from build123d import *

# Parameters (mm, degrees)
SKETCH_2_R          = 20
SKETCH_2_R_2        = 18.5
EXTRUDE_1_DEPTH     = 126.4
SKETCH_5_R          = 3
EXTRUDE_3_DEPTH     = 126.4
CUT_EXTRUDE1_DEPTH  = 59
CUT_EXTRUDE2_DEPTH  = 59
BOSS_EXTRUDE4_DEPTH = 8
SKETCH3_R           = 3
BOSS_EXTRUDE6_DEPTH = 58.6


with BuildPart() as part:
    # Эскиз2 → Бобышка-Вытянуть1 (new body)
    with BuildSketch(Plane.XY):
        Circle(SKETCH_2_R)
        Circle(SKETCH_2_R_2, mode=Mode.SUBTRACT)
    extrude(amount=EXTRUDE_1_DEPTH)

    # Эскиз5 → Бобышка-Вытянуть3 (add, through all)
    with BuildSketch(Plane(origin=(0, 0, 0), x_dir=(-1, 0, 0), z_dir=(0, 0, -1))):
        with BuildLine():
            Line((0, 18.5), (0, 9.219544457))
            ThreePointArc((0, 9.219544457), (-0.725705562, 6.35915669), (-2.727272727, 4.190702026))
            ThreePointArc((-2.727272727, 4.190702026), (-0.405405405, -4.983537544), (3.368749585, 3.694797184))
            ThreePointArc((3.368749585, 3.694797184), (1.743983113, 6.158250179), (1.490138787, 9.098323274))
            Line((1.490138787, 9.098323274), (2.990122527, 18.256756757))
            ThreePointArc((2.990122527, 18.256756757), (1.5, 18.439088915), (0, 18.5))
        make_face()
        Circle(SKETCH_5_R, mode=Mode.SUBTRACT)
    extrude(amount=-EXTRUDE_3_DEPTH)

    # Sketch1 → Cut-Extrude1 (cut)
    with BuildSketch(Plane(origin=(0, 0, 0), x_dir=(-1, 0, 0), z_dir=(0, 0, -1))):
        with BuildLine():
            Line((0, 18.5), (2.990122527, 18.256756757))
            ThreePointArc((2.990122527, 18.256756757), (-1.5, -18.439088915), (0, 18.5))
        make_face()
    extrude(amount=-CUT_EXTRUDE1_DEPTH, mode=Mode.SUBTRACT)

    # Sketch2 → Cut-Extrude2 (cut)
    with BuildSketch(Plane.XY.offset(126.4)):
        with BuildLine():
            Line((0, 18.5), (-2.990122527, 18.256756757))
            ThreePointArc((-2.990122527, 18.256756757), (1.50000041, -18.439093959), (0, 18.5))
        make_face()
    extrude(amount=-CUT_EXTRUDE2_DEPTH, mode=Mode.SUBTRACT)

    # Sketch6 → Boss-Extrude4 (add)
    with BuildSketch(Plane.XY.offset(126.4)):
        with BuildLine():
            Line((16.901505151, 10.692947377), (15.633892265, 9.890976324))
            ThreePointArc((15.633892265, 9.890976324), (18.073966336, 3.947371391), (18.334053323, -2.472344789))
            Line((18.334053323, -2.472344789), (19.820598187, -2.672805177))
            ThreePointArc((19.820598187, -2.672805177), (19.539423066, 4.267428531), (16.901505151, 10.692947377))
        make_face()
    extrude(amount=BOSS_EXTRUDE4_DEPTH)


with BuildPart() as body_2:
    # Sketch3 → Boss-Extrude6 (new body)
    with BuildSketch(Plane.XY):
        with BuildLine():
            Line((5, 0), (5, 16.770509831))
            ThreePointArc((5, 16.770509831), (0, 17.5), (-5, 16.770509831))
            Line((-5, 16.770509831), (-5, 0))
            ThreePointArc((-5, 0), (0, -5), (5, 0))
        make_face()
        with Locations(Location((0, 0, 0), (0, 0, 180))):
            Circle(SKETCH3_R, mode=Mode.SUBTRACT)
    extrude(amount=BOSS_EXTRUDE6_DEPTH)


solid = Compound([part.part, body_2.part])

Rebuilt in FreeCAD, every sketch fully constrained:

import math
import FreeCAD as App
import Part
import Sketcher
from FreeCAD import Vector
Q = App.Units.Quantity

doc = App.newDocument("Part")
body = doc.addObject("PartDesign::Body", "Body")

sketch1 = body.newObject("Sketcher::SketchObject", "Sketch")
sketch1.AttachmentSupport = (doc.getObject("XY_Plane"), [""])
sketch1.MapMode = "FlatFace"
sketch1.addGeometry(Part.Circle(Vector(0, 0, 0), Vector(0, 0, 1), 20), False)
sketch1.addGeometry(Part.Circle(Vector(0, 0, 0), Vector(0, 0, 1), 18), False)
sketch1.addConstraint(Sketcher.Constraint("Coincident", 0, 3, -1, 1))
sketch1.addConstraint(Sketcher.Constraint("Coincident", 1, 3, -1, 1))
sketch1.addConstraint(Sketcher.Constraint("Diameter", 0, 40.0))
sketch1.addConstraint(Sketcher.Constraint("Diameter", 1, 37.0))
pad1 = body.newObject("PartDesign::Pad", "Pad")
pad1.Profile = sketch1
pad1.Length = 126.4

sketch2 = body.newObject("Sketcher::SketchObject", "Sketch001")
sketch2.AttachmentSupport = (doc.getObject("XY_Plane"), [""])
sketch2.MapMode = "FlatFace"
sketch2.addGeometry(Part.LineSegment(Vector(0, 18.5, 0), Vector(0, 9.2, 0)), False)
sketch2.addGeometry(Part.ArcOfCircle(Part.Circle(Vector(6, 9.2, 0), Vector(0, 0, 1), 6), math.radians(-180), math.radians(-123)), False)
sketch2.addGeometry(Part.ArcOfCircle(Part.Circle(Vector(0, 0, 0), Vector(0, 0, 1), 5), math.radians(132), math.radians(417)), False)
sketch2.addGeometry(Part.ArcOfCircle(Part.Circle(Vector(-7.4, 8.1, 0), Vector(0, 0, 1), 6), math.radians(-48), math.radians(9)), False)
sketch2.addGeometry(Part.LineSegment(Vector(-1.5, 9.1, 0), Vector(-3, 18.3, 0)), False)
sketch2.addGeometry(Part.ArcOfCircle(Part.Circle(Vector(0, 0, 0), Vector(0, 0, 1), 18.5), math.radians(90), math.radians(99.3)), False)
sketch2.addGeometry(Part.Circle(Vector(0, 0, 0), Vector(0, 0, 1), 3), False)
sketch2.addConstraint(Sketcher.Constraint("Tangent", 0, 2, 1, 1))
sketch2.addConstraint(Sketcher.Constraint("Tangent", 1, 2, 2, 2))
sketch2.addConstraint(Sketcher.Constraint("Tangent", 2, 1, 3, 1))
sketch2.addConstraint(Sketcher.Constraint("Tangent", 3, 2, 4, 1))
sketch2.addConstraint(Sketcher.Constraint("Coincident", 4, 2, 5, 2))
sketch2.addConstraint(Sketcher.Constraint("Coincident", 5, 1, 0, 1))
sketch2.addConstraint(Sketcher.Constraint("Vertical", 0))
sketch2.addConstraint(Sketcher.Constraint("Coincident", 2, 3, -1, 1))
sketch2.addConstraint(Sketcher.Constraint("Coincident", 5, 3, -1, 1))
sketch2.addConstraint(Sketcher.Constraint("Coincident", 6, 3, -1, 1))
sketch2.addConstraint(Sketcher.Constraint("Equal", 1, 3))
sketch2.addConstraint(Sketcher.Constraint("PointOnObject", 0, 2, -2))
sketch2.addConstraint(Sketcher.Constraint("Diameter", 6, 6.0))
sketch2.addConstraint(Sketcher.Constraint("Radius", 1, 6.0))
sketch2.addConstraint(Sketcher.Constraint("Radius", 2, 5.0))
sketch2.addConstraint(Sketcher.Constraint("Radius", 5, 18.5))
sketch2.addConstraint(Sketcher.Constraint("DistanceX", 3, 3, 2, 1, 4.0425))
sketch2.addConstraint(Sketcher.Constraint("DistanceX", 3, 2, -1, 1, 1.490139))
pad2 = body.newObject("PartDesign::Pad", "Pad001")
pad2.Profile = sketch2
pad2.Length = 126.4

sketch3 = body.newObject("Sketcher::SketchObject", "Sketch002")
sketch3.AttachmentSupport = (doc.getObject("XY_Plane"), [""])
sketch3.MapMode = "FlatFace"
sketch3.addGeometry(Part.LineSegment(Vector(-3, 18.3, 0), Vector(0, 18.5, 0)), False)
sketch3.addGeometry(Part.ArcOfCircle(Part.Circle(Vector(0, 0, 0), Vector(0, 0, 1), 18.5), math.radians(99), math.radians(450)), False)
sketch3.addConstraint(Sketcher.Constraint("Coincident", 0, 1, 1, 1))
sketch3.addConstraint(Sketcher.Constraint("Coincident", 1, 2, 0, 2))
sketch3.addConstraint(Sketcher.Constraint("Coincident", 1, 3, -1, 1))
sketch3.addConstraint(Sketcher.Constraint("PointOnObject", 1, 2, -2))
sketch3.addConstraint(Sketcher.Constraint("Radius", 1, 18.5))
sketch3.addConstraint(Sketcher.Constraint("Distance", 0, 3.0))
pocket1 = body.newObject("PartDesign::Pocket", "Pocket")
pocket1.Profile = sketch3
pocket1.Length = 59
pocket1.Reversed = True

sketch4 = body.newObject("Sketcher::SketchObject", "Sketch003")
sketch4.AttachmentSupport = (doc.getObject("XY_Plane"), [""])
sketch4.MapMode = "FlatFace"
sketch4.AttachmentOffset = App.Placement(Vector(0, 0, 126.4), App.Rotation())
sketch4.addGeometry(Part.LineSegment(Vector(0, 18.5, 0), Vector(-3, 18.3, 0)), False)
sketch4.addGeometry(Part.ArcOfCircle(Part.Circle(Vector(0, 0, 0), Vector(0, 0, 1), 18.5), math.radians(99), math.radians(450)), False)
sketch4.addConstraint(Sketcher.Constraint("Coincident", 0, 1, 1, 2))
sketch4.addConstraint(Sketcher.Constraint("Coincident", 1, 1, 0, 2))
sketch4.addConstraint(Sketcher.Constraint("Coincident", 1, 3, -1, 1))
sketch4.addConstraint(Sketcher.Constraint("PointOnObject", 0, 1, -2))
sketch4.addConstraint(Sketcher.Constraint("Distance", 0, 3.0))
sketch4.addConstraint(Sketcher.Constraint("DistanceY", -1, 1, 0, 1, 18.5))
pocket2 = body.newObject("PartDesign::Pocket", "Pocket001")
pocket2.Profile = sketch4
pocket2.Length = 59

sketch5 = body.newObject("Sketcher::SketchObject", "Sketch004")
sketch5.AttachmentSupport = (doc.getObject("XY_Plane"), [""])
sketch5.MapMode = "FlatFace"
sketch5.AttachmentOffset = App.Placement(Vector(0, 0, 126.4), App.Rotation())
sketch5.addGeometry(Part.LineSegment(Vector(16.9, 10.7, 0), Vector(15.6, 9.9, 0)), False)
sketch5.addGeometry(Part.ArcOfCircle(Part.Circle(Vector(0, 0, 0), Vector(0, 0, 1), 18.5), math.radians(-8), math.radians(32)), False)
sketch5.addGeometry(Part.LineSegment(Vector(18.3, -2.5, 0), Vector(19.8, -2.7, 0)), False)
sketch5.addGeometry(Part.ArcOfCircle(Part.Circle(Vector(0, 0, 0), Vector(0, 0, 1), 20), math.radians(-8), math.radians(32)), False)
sketch5.addConstraint(Sketcher.Constraint("Coincident", 0, 2, 1, 2))
sketch5.addConstraint(Sketcher.Constraint("Coincident", 1, 1, 2, 1))
sketch5.addConstraint(Sketcher.Constraint("Coincident", 2, 2, 3, 1))
sketch5.addConstraint(Sketcher.Constraint("Coincident", 3, 2, 0, 1))
sketch5.addConstraint(Sketcher.Constraint("Coincident", 1, 3, -1, 1))
sketch5.addConstraint(Sketcher.Constraint("Coincident", 3, 3, -1, 1))
sketch5.addConstraint(Sketcher.Constraint("Radius", 3, 20.0))
sketch5.addConstraint(Sketcher.Constraint("Radius", 1, 18.5))
sketch5.addConstraint(Sketcher.Constraint("Angle", 0, Q("-147.68 deg")))
sketch5.addConstraint(Sketcher.Constraint("Angle", 2, Q("-7.68 deg")))
sketch5.addConstraint(Sketcher.Constraint("DistanceX", -1, 1, 2, 2, 19.820598))
sketch5.addConstraint(Sketcher.Constraint("DistanceX", 0, 2, 1, 1, 2.700161))
pad3 = body.newObject("PartDesign::Pad", "Pad002")
pad3.Profile = sketch5
pad3.Length = 8
body2 = doc.addObject("PartDesign::Body", "Body001")

sketch6 = body2.newObject("Sketcher::SketchObject", "Sketch005")
sketch6.AttachmentSupport = (doc.getObject("XY_Plane001"), [""])
sketch6.MapMode = "FlatFace"
sketch6.addGeometry(Part.LineSegment(Vector(5, 0, 0), Vector(5, 16.8, 0)), False)
sketch6.addGeometry(Part.ArcOfCircle(Part.Circle(Vector(0, 0, 0), Vector(0, 0, 1), 17.5), math.radians(73), math.radians(107)), False)
sketch6.addGeometry(Part.LineSegment(Vector(-5, 16.8, 0), Vector(-5, 0, 0)), False)
sketch6.addGeometry(Part.ArcOfCircle(Part.Circle(Vector(0, 0, 0), Vector(0, 0, 1), 5), math.radians(180), math.radians(360)), False)
sketch6.addGeometry(Part.Circle(Vector(0, 0, 0), Vector(0, 0, 1), 3), False)
sketch6.addConstraint(Sketcher.Constraint("Coincident", 0, 2, 1, 1))
sketch6.addConstraint(Sketcher.Constraint("Coincident", 1, 2, 2, 1))
sketch6.addConstraint(Sketcher.Constraint("Tangent", 2, 2, 3, 1))
sketch6.addConstraint(Sketcher.Constraint("Tangent", 3, 2, 0, 1))
sketch6.addConstraint(Sketcher.Constraint("Vertical", 0))
sketch6.addConstraint(Sketcher.Constraint("Vertical", 2))
sketch6.addConstraint(Sketcher.Constraint("Coincident", 1, 3, -1, 1))
sketch6.addConstraint(Sketcher.Constraint("Coincident", 3, 3, -1, 1))
sketch6.addConstraint(Sketcher.Constraint("Coincident", 4, 3, -1, 1))
sketch6.addConstraint(Sketcher.Constraint("Diameter", 4, 6.0))
sketch6.addConstraint(Sketcher.Constraint("Radius", 3, 5.0))
sketch6.addConstraint(Sketcher.Constraint("Radius", 1, 17.5))
pad4 = body2.newObject("PartDesign::Pad", "Pad003")
pad4.Profile = sketch6
pad4.Length = 58.6

doc.recompute()
